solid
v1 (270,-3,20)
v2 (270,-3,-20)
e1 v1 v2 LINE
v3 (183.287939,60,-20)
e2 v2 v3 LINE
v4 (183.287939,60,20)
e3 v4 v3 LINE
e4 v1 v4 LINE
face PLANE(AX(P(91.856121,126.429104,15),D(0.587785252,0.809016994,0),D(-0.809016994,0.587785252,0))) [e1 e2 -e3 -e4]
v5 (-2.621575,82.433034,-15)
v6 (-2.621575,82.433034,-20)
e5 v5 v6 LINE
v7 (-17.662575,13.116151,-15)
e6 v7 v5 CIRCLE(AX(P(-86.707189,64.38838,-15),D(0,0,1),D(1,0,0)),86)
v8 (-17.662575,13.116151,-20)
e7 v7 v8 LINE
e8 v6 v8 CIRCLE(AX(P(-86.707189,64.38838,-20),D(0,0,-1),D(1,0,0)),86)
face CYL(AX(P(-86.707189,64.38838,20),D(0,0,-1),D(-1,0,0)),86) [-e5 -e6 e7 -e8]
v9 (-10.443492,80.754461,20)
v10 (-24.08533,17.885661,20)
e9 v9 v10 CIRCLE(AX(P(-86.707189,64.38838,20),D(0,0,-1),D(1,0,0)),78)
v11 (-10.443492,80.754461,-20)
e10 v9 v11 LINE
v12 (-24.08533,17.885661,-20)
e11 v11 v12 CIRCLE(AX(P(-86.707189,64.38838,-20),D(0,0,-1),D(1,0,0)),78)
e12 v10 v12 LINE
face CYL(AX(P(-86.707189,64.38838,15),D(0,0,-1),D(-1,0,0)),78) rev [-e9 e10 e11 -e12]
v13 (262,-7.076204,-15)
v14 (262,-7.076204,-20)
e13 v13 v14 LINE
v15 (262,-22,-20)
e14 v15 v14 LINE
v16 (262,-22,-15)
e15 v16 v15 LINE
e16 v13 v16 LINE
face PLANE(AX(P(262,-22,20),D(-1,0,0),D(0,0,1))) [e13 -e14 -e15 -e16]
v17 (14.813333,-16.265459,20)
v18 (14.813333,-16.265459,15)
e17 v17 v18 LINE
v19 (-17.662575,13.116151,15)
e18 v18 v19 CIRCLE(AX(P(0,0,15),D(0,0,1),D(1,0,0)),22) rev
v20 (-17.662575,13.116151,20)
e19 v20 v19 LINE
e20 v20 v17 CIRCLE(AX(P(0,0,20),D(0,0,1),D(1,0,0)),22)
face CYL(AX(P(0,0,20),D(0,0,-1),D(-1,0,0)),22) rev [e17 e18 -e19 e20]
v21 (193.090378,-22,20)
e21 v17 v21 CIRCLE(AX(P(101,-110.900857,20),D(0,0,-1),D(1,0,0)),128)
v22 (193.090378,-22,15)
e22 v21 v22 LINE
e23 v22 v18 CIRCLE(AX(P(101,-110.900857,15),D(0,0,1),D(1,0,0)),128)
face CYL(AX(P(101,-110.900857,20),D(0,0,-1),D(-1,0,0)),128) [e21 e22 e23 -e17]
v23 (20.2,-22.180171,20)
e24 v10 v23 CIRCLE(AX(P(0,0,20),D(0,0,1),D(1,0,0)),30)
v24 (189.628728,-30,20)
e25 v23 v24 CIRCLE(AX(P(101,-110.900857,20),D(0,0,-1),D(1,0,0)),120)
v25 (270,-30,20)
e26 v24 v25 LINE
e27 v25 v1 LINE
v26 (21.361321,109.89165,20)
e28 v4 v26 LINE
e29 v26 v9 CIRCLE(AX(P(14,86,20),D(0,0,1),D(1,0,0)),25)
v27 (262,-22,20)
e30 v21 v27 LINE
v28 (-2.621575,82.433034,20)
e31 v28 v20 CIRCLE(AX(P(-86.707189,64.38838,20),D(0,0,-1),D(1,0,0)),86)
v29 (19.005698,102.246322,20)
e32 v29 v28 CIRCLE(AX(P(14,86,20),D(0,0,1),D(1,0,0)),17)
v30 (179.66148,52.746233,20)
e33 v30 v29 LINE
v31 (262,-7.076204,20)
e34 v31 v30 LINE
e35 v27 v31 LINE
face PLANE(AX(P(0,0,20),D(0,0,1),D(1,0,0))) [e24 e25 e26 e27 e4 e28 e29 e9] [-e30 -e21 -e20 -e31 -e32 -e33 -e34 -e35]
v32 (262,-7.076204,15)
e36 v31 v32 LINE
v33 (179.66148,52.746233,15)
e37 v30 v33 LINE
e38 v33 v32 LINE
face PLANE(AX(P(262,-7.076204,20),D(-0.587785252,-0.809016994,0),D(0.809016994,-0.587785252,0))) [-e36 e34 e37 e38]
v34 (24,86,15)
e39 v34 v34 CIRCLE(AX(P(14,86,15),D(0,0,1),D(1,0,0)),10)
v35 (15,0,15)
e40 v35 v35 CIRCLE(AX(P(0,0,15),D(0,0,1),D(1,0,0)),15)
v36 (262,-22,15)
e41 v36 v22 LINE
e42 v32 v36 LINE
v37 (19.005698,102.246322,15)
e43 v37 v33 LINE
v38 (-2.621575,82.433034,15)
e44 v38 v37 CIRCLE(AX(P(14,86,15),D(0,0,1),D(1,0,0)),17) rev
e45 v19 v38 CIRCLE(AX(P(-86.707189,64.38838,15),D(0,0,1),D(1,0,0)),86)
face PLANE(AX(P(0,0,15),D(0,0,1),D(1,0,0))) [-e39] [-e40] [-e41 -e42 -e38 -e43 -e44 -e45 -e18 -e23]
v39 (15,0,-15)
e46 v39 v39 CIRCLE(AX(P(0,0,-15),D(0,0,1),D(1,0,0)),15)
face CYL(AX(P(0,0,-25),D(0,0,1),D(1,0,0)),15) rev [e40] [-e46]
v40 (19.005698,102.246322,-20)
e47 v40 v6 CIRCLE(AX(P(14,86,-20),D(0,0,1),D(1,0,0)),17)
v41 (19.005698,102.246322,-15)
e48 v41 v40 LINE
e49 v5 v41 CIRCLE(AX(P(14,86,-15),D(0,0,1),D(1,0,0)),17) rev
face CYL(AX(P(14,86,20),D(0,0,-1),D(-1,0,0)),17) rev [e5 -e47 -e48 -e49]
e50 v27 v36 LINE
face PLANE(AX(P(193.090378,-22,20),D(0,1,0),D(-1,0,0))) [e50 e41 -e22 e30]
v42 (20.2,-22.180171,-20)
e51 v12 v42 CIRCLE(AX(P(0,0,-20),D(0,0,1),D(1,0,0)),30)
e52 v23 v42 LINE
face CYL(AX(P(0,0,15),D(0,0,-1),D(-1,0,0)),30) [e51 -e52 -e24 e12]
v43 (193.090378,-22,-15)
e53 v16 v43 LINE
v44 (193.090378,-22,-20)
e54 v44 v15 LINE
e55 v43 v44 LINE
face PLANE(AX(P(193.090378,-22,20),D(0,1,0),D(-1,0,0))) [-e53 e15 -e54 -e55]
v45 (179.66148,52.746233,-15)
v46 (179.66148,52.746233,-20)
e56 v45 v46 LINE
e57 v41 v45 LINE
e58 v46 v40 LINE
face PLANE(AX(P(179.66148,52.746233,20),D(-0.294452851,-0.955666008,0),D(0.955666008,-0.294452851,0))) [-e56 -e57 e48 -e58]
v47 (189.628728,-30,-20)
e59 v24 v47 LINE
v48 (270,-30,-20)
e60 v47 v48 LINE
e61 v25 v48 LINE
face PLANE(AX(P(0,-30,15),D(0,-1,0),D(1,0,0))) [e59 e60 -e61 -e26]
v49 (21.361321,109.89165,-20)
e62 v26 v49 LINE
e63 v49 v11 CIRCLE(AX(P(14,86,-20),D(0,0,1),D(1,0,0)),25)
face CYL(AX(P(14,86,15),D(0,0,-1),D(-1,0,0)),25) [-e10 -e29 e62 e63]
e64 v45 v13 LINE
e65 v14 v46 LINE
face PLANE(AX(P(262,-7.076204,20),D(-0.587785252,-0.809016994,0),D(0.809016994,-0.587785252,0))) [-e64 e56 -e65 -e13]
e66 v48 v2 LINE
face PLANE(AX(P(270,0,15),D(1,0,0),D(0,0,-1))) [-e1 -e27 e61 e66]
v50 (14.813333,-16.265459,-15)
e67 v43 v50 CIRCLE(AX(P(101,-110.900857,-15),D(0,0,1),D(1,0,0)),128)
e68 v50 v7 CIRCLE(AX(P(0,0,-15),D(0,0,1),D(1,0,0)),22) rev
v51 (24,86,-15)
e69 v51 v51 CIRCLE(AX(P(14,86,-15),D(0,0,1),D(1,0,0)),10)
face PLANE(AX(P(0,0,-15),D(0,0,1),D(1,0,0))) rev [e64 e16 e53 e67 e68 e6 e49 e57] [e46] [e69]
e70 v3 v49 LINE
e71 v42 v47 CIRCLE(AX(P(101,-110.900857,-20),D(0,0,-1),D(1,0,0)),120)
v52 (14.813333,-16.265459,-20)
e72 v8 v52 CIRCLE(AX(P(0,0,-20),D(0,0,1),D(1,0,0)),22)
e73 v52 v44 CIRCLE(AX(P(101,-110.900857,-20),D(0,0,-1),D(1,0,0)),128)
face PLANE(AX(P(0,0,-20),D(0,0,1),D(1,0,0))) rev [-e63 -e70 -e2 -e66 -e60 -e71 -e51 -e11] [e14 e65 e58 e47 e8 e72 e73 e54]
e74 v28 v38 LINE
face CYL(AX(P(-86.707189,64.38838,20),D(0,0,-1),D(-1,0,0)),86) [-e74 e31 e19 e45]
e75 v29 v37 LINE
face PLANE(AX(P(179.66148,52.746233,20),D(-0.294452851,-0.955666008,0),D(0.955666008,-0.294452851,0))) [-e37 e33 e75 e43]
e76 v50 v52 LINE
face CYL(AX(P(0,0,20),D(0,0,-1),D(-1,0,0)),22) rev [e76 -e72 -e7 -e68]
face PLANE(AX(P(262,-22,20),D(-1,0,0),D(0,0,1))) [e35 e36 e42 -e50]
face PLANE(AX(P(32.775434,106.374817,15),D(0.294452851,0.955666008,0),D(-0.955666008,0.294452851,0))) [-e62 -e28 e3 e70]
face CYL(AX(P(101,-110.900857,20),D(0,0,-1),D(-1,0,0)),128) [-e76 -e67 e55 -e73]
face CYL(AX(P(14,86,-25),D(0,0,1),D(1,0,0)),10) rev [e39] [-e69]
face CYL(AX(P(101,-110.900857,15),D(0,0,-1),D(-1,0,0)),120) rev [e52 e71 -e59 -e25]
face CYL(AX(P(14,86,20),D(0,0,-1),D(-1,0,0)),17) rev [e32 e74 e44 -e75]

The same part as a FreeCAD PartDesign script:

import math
import FreeCAD as App
import Part
import Sketcher
from FreeCAD import Vector
Q = App.Units.Quantity

doc = App.newDocument("Part")
body = doc.addObject("PartDesign::Body", "Body")

sketch1 = body.newObject("Sketcher::SketchObject", "Sketch")
sketch1.AttachmentSupport = (doc.getObject("XY_Plane"), [""])
sketch1.MapMode = "FlatFace"
sketch1.addGeometry([
    Part.LineSegment(Vector(183, 60, 0), Vector(21, 110, 0)),
    Part.ArcOfCircle(Part.Circle(Vector(14, 86, 0), Vector(0, 0, 1), 25), math.radians(73), math.radians(192)),
    Part.ArcOfCircle(Part.Circle(Vector(-87, 64, 0), Vector(0, 0, 1), 78), math.radians(-37), math.radians(12)),
    Part.ArcOfCircle(Part.Circle(Vector(0, 0, 0), Vector(0, 0, 1), 30), math.radians(143), math.radians(312)),
    Part.ArcOfCircle(Part.Circle(Vector(101, -111, 0), Vector(0, 0, 1), 120), math.radians(42), math.radians(132)),
    Part.LineSegment(Vector(190, -30, 0), Vector(270, -30, 0)),
    Part.LineSegment(Vector(270, -30, 0), Vector(270, -3, 0)),
    Part.LineSegment(Vector(270, -3, 0), Vector(183, 60, 0)),
], False)
sketch1.addConstraint([
    Sketcher.Constraint("Tangent", 0, 2, 1, 1),
    Sketcher.Constraint("Tangent", 1, 2, 2, 2),
    Sketcher.Constraint("Tangent", 2, 1, 3, 1),
    Sketcher.Constraint("Tangent", 3, 2, 4, 2),
    Sketcher.Constraint("Coincident", 4, 1, 5, 1),
    Sketcher.Constraint("Coincident", 5, 2, 6, 1),
    Sketcher.Constraint("Coincident", 6, 2, 7, 1),
    Sketcher.Constraint("Coincident", 7, 2, 0, 1),
    Sketcher.Constraint("Horizontal", 5),
    Sketcher.Constraint("Vertical", 6),
    Sketcher.Constraint("Coincident", 3, 3, -1, 1),
    Sketcher.Constraint("Radius", 1, 25.0),
    Sketcher.Constraint("Radius", 2, 78.0),
    Sketcher.Constraint("Radius", 3, 30.0),
    Sketcher.Constraint("Radius", 4, 120.0),
    Sketcher.Constraint("DistanceY", 6, 1, 6, 2, 27.0),
    Sketcher.Constraint("Angle", 7, Q("144 deg")),
    Sketcher.Constraint("DistanceX", -1, 1, 1, 3, 14.0),
    Sketcher.Constraint("DistanceY", -1, 1, 1, 3, 86.0),
    Sketcher.Constraint("DistanceX", -1, 1, 4, 3, 101.0),
    Sketcher.Constraint("DistanceY", 4, 1, -1, 1, 30.0),
    Sketcher.Constraint("DistanceX", -1, 1, 5, 2, 270.0),
    Sketcher.Constraint("DistanceY", -1, 1, 7, 2, 60.0),
])
pad1 = body.newObject("PartDesign::Pad", "Pad")
pad1.Profile = sketch1
pad1.Length = 30
pad1.Midplane = True

sketch2 = body.newObject("Sketcher::SketchObject", "Sketch001")
sketch2.AttachmentSupport = (doc.getObject("XY_Plane"), [""])
sketch2.MapMode = "FlatFace"
sketch2.addGeometry([
    Part.LineSegment(Vector(190, -30, 0), Vector(270, -30, 0)),
    Part.LineSegment(Vector(270, -30, 0), Vector(270, -3, 0)),
    Part.LineSegment(Vector(270, -3, 0), Vector(183, 60, 0)),
    Part.LineSegment(Vector(183, 60, 0), Vector(21, 110, 0)),
    Part.ArcOfCircle(Part.Circle(Vector(14, 86, 0), Vector(0, 0, 1), 25), math.radians(73), math.radians(192)),
    Part.ArcOfCircle(Part.Circle(Vector(-87, 64, 0), Vector(0, 0, 1), 78), math.radians(-37), math.radians(12)),
    Part.ArcOfCircle(Part.Circle(Vector(0, 0, 0), Vector(0, 0, 1), 30), math.radians(143), math.radians(312)),
    Part.ArcOfCircle(Part.Circle(Vector(101, -111, 0), Vector(0, 0, 1), 120), math.radians(42), math.radians(132)),
    Part.LineSegment(Vector(262, -22, 0), Vector(193, -22, 0)),
    Part.ArcOfCircle(Part.Circle(Vector(101, -111, 0), Vector(0, 0, 1), 128), math.radians(44), math.radians(132)),
    Part.ArcOfCircle(Part.Circle(Vector(0, 0, 0), Vector(0, 0, 1), 22), math.radians(143), math.radians(312)),
    Part.ArcOfCircle(Part.Circle(Vector(-87, 64, 0), Vector(0, 0, 1), 86), math.radians(-37), math.radians(12)),
    Part.ArcOfCircle(Part.Circle(Vector(14, 86, 0), Vector(0, 0, 1), 17), math.radians(73), math.radians(192)),
    Part.LineSegment(Vector(19, 102, 0), Vector(180, 53, 0)),
    Part.LineSegment(Vector(180, 53, 0), Vector(262, -7, 0)),
    Part.LineSegment(Vector(262, -7, 0), Vector(262, -22, 0)),
], False)
sketch2.addConstraint([
    Sketcher.Constraint("Coincident", 0, 2, 1, 1),
    Sketcher.Constraint("Coincident", 1, 2, 2, 1),
    Sketcher.Constraint("Coincident", 2, 2, 3, 1),
    Sketcher.Constraint("Tangent", 3, 2, 4, 1),
    Sketcher.Constraint("Tangent", 4, 2, 5, 2),
    Sketcher.Constraint("Tangent", 5, 1, 6, 1),
    Sketcher.Constraint("Tangent", 6, 2, 7, 2),
    Sketcher.Constraint("Coincident", 7, 1, 0, 1),
    Sketcher.Constraint("Coincident", 8, 2, 9, 1),
    Sketcher.Constraint("Tangent", 9, 2, 10, 2),
    Sketcher.Constraint("Tangent", 10, 1, 11, 1),
    Sketcher.Constraint("Tangent", 11, 2, 12, 2),
    Sketcher.Constraint("Tangent", 12, 1, 13, 1),
    Sketcher.Constraint("Coincident", 13, 2, 14, 1),
    Sketcher.Constraint("Coincident", 14, 2, 15, 1),
    Sketcher.Constraint("Coincident", 15, 2, 8, 1),
    Sketcher.Constraint("Horizontal", 0),
    Sketcher.Constraint("Vertical", 1),
    Sketcher.Constraint("Horizontal", 8),
    Sketcher.Constraint("Vertical", 15),
    Sketcher.Constraint("Coincident", 6, 3, -1, 1),
    Sketcher.Constraint("Coincident", 10, 3, -1, 1),
    Sketcher.Constraint("Coincident", 9, 3, 7, 3),
    Sketcher.Constraint("Coincident", 11, 3, 5, 3),
    Sketcher.Constraint("Coincident", 12, 3, 4, 3),
    Sketcher.Constraint("Parallel", 3, 13),
    Sketcher.Constraint("Parallel", 2, 14),
    Sketcher.Constraint("Radius", 4, 25.0),
    Sketcher.Constraint("Radius", 5, 78.0),
    Sketcher.Constraint("Radius", 6, 30.0),
    Sketcher.Constraint("Radius", 7, 120.0),
    Sketcher.Constraint("Radius", 9, 128.0),
    Sketcher.Constraint("DistanceY", 1, 1, 1, 2, 27.0),
    Sketcher.Constraint("Angle", 2, Q("144 deg")),
    Sketcher.Constraint("DistanceX", -1, 1, 4, 3, 14.0),
    Sketcher.Constraint("DistanceY", -1, 1, 4, 3, 86.0),
    Sketcher.Constraint("DistanceX", -1, 1, 7, 3, 101.0),
    Sketcher.Constraint("DistanceX", -1, 1, 0, 2, 270.0),
    Sketcher.Constraint("DistanceY", 0, 2, -1, 1, 30.0),
    Sketcher.Constraint("DistanceY", -1, 1, 2, 2, 60.0),
    Sketcher.Constraint("DistanceY", 8, 2, -1, 1, 22.0),
    Sketcher.Constraint("DistanceX", -1, 1, 14, 2, 262.0),
    Sketcher.Constraint("DistanceY", 15, 2, 15, 1, 14.923796),
])
pad2 = body.newObject("PartDesign::Pad", "Pad001")
pad2.Profile = sketch2
pad2.Length = 40
pad2.Midplane = True

sketch3 = body.newObject("Sketcher::SketchObject", "Sketch002")
sketch3.AttachmentSupport = (doc.getObject("XY_Plane"), [""])
sketch3.MapMode = "FlatFace"
sketch3.AttachmentOffset = App.Placement(Vector(0, 0, 15), App.Rotation())
sketch3.addGeometry([
    Part.Circle(Vector(14, 86, 0), Vector(0, 0, 1), 10),
    Part.Circle(Vector(0, 0, 0), Vector(0, 0, 1), 15),
], False)
sketch3.addConstraint([
    Sketcher.Constraint("Coincident", 1, 3, -1, 1),
    Sketcher.Constraint("Diameter", 0, 20.0),
    Sketcher.Constraint("Diameter", 1, 30.0),
    Sketcher.Constraint("DistanceX", -1, 1, 0, 3, 14.0),
    Sketcher.Constraint("DistanceY", -1, 1, 0, 3, 86.0),
])
pocket1 = body.newObject("PartDesign::Pocket", "Pocket")
pocket1.Profile = sketch3
pocket1.Length = 40

doc.recompute()
